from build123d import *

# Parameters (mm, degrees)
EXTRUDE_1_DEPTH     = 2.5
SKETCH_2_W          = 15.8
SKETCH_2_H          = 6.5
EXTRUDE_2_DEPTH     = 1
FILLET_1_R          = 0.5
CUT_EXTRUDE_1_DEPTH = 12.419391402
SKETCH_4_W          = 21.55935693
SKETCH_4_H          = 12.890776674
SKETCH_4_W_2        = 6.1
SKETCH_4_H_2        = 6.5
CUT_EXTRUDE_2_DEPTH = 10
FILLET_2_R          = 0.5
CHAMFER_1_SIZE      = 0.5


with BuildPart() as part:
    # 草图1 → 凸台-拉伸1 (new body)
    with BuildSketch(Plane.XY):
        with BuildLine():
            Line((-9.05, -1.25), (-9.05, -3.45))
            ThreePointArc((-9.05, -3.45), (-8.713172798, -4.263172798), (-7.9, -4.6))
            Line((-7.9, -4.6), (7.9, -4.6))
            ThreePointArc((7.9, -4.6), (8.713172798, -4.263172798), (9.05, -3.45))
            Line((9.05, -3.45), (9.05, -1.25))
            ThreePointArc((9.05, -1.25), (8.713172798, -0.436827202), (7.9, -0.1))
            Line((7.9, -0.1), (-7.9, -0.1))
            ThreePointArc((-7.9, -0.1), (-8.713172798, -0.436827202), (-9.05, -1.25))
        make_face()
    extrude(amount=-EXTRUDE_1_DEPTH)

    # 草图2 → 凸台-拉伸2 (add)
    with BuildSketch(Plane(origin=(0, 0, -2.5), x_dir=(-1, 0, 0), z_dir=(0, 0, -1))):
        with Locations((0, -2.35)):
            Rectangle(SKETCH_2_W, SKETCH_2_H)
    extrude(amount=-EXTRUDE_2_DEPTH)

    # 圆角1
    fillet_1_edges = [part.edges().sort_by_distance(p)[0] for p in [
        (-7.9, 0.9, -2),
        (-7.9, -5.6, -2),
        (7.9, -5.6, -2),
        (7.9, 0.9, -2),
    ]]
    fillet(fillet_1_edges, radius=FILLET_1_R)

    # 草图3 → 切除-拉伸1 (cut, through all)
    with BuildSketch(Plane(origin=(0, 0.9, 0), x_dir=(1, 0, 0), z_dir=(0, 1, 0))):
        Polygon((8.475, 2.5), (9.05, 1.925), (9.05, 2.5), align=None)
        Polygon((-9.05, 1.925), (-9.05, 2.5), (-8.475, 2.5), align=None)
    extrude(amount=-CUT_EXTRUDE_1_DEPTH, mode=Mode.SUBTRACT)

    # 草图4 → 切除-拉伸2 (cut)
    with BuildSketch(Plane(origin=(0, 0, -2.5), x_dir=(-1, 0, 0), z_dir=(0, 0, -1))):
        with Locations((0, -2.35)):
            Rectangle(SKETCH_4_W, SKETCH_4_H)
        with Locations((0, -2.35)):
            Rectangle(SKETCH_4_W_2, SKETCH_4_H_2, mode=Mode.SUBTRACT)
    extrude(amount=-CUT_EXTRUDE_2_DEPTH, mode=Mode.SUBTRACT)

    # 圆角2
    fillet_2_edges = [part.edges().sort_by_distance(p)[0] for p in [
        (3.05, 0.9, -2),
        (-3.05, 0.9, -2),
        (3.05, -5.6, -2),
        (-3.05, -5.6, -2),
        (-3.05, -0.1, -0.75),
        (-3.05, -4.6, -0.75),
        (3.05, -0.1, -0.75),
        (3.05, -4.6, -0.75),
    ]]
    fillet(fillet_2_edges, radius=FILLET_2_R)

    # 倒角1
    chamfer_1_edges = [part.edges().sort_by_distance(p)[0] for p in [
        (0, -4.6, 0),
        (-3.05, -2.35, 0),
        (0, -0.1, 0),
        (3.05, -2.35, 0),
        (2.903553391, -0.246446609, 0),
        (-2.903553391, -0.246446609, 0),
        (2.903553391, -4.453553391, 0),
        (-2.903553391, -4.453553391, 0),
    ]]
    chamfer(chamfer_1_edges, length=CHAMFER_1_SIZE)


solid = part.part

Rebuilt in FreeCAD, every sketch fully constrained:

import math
import FreeCAD as App
import Part
import Sketcher


def edges_at(feature, points):
    """Names of the edges that pass closest to the given points."""
    edges = feature.Shape.Edges
    near = lambda p: min(range(len(edges)), key=lambda i: edges[i].distToShape(Part.Vertex(*p))[0])
    return sorted({f"Edge{near(p) + 1}" for p in points})


def add_polygon(sketch, points):
    """Adds a closed chain of lines whose ends are joined by coincident constraints."""
    first, n = sketch.GeometryCount, len(points)
    for a, b in zip(points, points[1:] + points[:1]):
        sketch.addGeometry(Part.LineSegment(App.Vector(*a, 0), App.Vector(*b, 0)), False)
    for i in range(n):
        sketch.addConstraint(Sketcher.Constraint("Coincident", first + i, 2, first + (i + 1) % n, 1))

doc = App.newDocument("Part")
body = doc.addObject("PartDesign::Body", "Body")

sketch1 = doc.addObject("Sketcher::SketchObject", "Sketch")
body.addObject(sketch1)
sketch1.AttachmentSupport = (doc.XY_Plane, [""])
sketch1.MapMode = "FlatFace"
sketch1.addGeometry(Part.LineSegment(App.Vector(-9.05, -1.25, 0), App.Vector(-9.05, -3.45, 0)), False)
sketch1.addGeometry(Part.ArcOfCircle(Part.Circle(App.Vector(-7.9, -3.45, 0), App.Vector(0, 0, 1), 1.15), math.radians(-180), math.radians(-90)), False)
sketch1.addGeometry(Part.LineSegment(App.Vector(-7.9, -4.6, 0), App.Vector(7.9, -4.6, 0)), False)
sketch1.addGeometry(Part.ArcOfCircle(Part.Circle(App.Vector(7.9, -3.45, 0), App.Vector(0, 0, 1), 1.15), math.radians(-90), math.radians(0)), False)
sketch1.addGeometry(Part.LineSegment(App.Vector(9.05, -3.45, 0), App.Vector(9.05, -1.25, 0)), False)
sketch1.addGeometry(Part.ArcOfCircle(Part.Circle(App.Vector(7.9, -1.25, 0), App.Vector(0, 0, 1), 1.15), math.radians(0), math.radians(90)), False)
sketch1.addGeometry(Part.LineSegment(App.Vector(7.9, -0.1, 0), App.Vector(-7.9, -0.1, 0)), False)
sketch1.addGeometry(Part.ArcOfCircle(Part.Circle(App.Vector(-7.9, -1.25, 0), App.Vector(0, 0, 1), 1.15), math.radians(90), math.radians(180)), False)
sketch1.addConstraint(Sketcher.Constraint("Tangent", 0, 2, 1, 1))
sketch1.addConstraint(Sketcher.Constraint("Tangent", 1, 2, 2, 1))
sketch1.addConstraint(Sketcher.Constraint("Tangent", 2, 2, 3, 1))
sketch1.addConstraint(Sketcher.Constraint("Tangent", 3, 2, 4, 1))
sketch1.addConstraint(Sketcher.Constraint("Tangent", 4, 2, 5, 1))
sketch1.addConstraint(Sketcher.Constraint("Tangent", 5, 2, 6, 1))
sketch1.addConstraint(Sketcher.Constraint("Tangent", 6, 2, 7, 1))
sketch1.addConstraint(Sketcher.Constraint("Tangent", 7, 2, 0, 1))
sketch1.addConstraint(Sketcher.Constraint("Vertical", 0))
sketch1.addConstraint(Sketcher.Constraint("Horizontal", 2))
sketch1.addConstraint(Sketcher.Constraint("Vertical", 4))
sketch1.addConstraint(Sketcher.Constraint("Horizontal", 6))
sketch1.addConstraint(Sketcher.Constraint("Equal", 1, 3))
sketch1.addConstraint(Sketcher.Constraint("Equal", 3, 5))
sketch1.addConstraint(Sketcher.Constraint("Equal", 5, 7))
sketch1.addConstraint(Sketcher.Constraint("Radius", 1, 1.15))
sketch1.addConstraint(Sketcher.Constraint("DistanceX", 2, 1, 2, 2, 15.8))
sketch1.addConstraint(Sketcher.Constraint("DistanceY", 0, 2, 0, 1, 2.2))
sketch1.addConstraint(Sketcher.Constraint("DistanceX", 1, 3, -1, 1, 7.9))
sketch1.addConstraint(Sketcher.Constraint("DistanceY", 1, 2, -1, 1, 4.6))
pad1 = doc.addObject("PartDesign::Pad", "Pad")
body.addObject(pad1)
pad1.Profile = sketch1
pad1.Length = 2.5
pad1.Reversed = True

sketch2 = doc.addObject("Sketcher::SketchObject", "Sketch001")
body.addObject(sketch2)
sketch2.AttachmentSupport = (doc.XY_Plane, [""])
sketch2.MapMode = "FlatFace"
sketch2.AttachmentOffset = App.Placement(App.Vector(0, 0, -2.5), App.Rotation())
add_polygon(sketch2, [(7.9, 0.9), (7.9, -5.6), (-7.9, -5.6), (-7.9, 0.9)])
sketch2.addConstraint(Sketcher.Constraint("Vertical", 0))
sketch2.addConstraint(Sketcher.Constraint("Horizontal", 1))
sketch2.addConstraint(Sketcher.Constraint("Vertical", 2))
sketch2.addConstraint(Sketcher.Constraint("Horizontal", 3))
sketch2.addConstraint(Sketcher.Constraint("DistanceX", 1, 2, 1, 1, 15.8))
sketch2.addConstraint(Sketcher.Constraint("DistanceY", 0, 2, 0, 1, 6.5))
sketch2.addConstraint(Sketcher.Constraint("DistanceX", -1, 1, 0, 2, 7.9))
sketch2.addConstraint(Sketcher.Constraint("DistanceY", 0, 2, -1, 1, 5.6))
pad2 = doc.addObject("PartDesign::Pad", "Pad001")
body.addObject(pad2)
pad2.Profile = sketch2
pad2.Length = 1
doc.recompute()

fillet = doc.addObject("PartDesign::Fillet", "Fillet")
body.addObject(fillet)
fillet.Base = (pad2, edges_at(pad2, [
    (-7.9, 0.9, -2),
    (-7.9, -5.6, -2),
    (7.9, -5.6, -2),
    (7.9, 0.9, -2),
]))
fillet.Radius = 0.5

sketch3 = doc.addObject("Sketcher::SketchObject", "Sketch002")
body.addObject(sketch3)
sketch3.AttachmentSupport = (doc.XZ_Plane, [""])
sketch3.MapMode = "FlatFace"
sketch3.AttachmentOffset = App.Placement(App.Vector(0, 0, -0.9), App.Rotation())
add_polygon(sketch3, [(8.475, -2.5), (9.05, -1.925), (9.05, -2.5)])
add_polygon(sketch3, [(-9.05, -2.5), (-9.05, -1.925), (-8.475, -2.5)])
sketch3.addConstraint(Sketcher.Constraint("Vertical", 1))
sketch3.addConstraint(Sketcher.Constraint("Horizontal", 2))
sketch3.addConstraint(Sketcher.Constraint("Vertical", 3))
sketch3.addConstraint(Sketcher.Constraint("Horizontal", 5))
sketch3.addConstraint(Sketcher.Constraint("Symmetric", 0, 2, 3, 2, -2))
sketch3.addConstraint(Sketcher.Constraint("Symmetric", 2, 2, 4, 2, -2))
sketch3.addConstraint(Sketcher.Constraint("Perpendicular", 0, 4))
sketch3.addConstraint(Sketcher.Constraint("DistanceY", 1, 2, -1, 1, 2.5))
sketch3.addConstraint(Sketcher.Constraint("DistanceX", 3, 2, 0, 2, 18.1))
sketch3.addConstraint(Sketcher.Constraint("DistanceX", 2, 2, 2, 1, 0.575))
pocket1 = doc.addObject("PartDesign::Pocket", "Pocket")
body.addObject(pocket1)
pocket1.Profile = sketch3
pocket1.Type = "ThroughAll"
pocket1.Reversed = True

sketch4 = doc.addObject("Sketcher::SketchObject", "Sketch003")
body.addObject(sketch4)
sketch4.AttachmentSupport = (doc.XY_Plane, [""])
sketch4.MapMode = "FlatFace"
sketch4.AttachmentOffset = App.Placement(App.Vector(0, 0, -2.5), App.Rotation())
add_polygon(sketch4, [(10.779678, 4.095388), (10.779678, -8.795388), (-10.779678, -8.795388), (-10.779678, 4.095388)])
add_polygon(sketch4, [(-3.05, -5.6), (3.05, -5.6), (3.05, 0.9), (-3.05, 0.9)])
sketch4.addConstraint(Sketcher.Constraint("Vertical", 0))
sketch4.addConstraint(Sketcher.Constraint("Horizontal", 1))
sketch4.addConstraint(Sketcher.Constraint("Vertical", 2))
sketch4.addConstraint(Sketcher.Constraint("Horizontal", 3))
sketch4.addConstraint(Sketcher.Constraint("Horizontal", 4))
sketch4.addConstraint(Sketcher.Constraint("Vertical", 5))
sketch4.addConstraint(Sketcher.Constraint("Horizontal", 6))
sketch4.addConstraint(Sketcher.Constraint("Vertical", 7))
sketch4.addConstraint(Sketcher.Constraint("DistanceX", 4, 1, 4, 2, 6.1))
sketch4.addConstraint(Sketcher.Constraint("DistanceY", 5, 1, 5, 2, 6.5))
sketch4.addConstraint(Sketcher.Constraint("DistanceY", 4, 2, -1, 1, 5.6))
sketch4.addConstraint(Sketcher.Constraint("DistanceX", -1, 1, 4, 2, 3.05))
sketch4.addConstraint(Sketcher.Constraint("DistanceX", 1, 2, 1, 1, 21.559357))
sketch4.addConstraint(Sketcher.Constraint("DistanceY", 0, 2, 0, 1, 12.890777))
sketch4.addConstraint(Sketcher.Constraint("DistanceX", -1, 1, 0, 2, 10.779678))
sketch4.addConstraint(Sketcher.Constraint("DistanceY", 0, 2, -1, 1, 8.795388))
pocket2 = doc.addObject("PartDesign::Pocket", "Pocket001")
body.addObject(pocket2)
pocket2.Profile = sketch4
pocket2.Length = 10
pocket2.Reversed = True
doc.recompute()

fillet2 = doc.addObject("PartDesign::Fillet", "Fillet001")
body.addObject(fillet2)
fillet2.Base = (pocket2, edges_at(pocket2, [
    (3.05, 0.9, -2),
    (-3.05, 0.9, -2),
    (3.05, -5.6, -2),
    (-3.05, -5.6, -2),
    (-3.05, -0.1, -0.75),
    (-3.05, -4.6, -0.75),
    (3.05, -0.1, -0.75),
    (3.05, -4.6, -0.75),
]))
fillet2.Radius = 0.5
doc.recompute()

chamfer = doc.addObject("PartDesign::Chamfer", "Chamfer")
body.addObject(chamfer)
chamfer.Base = (fillet2, edges_at(fillet2, [
    (0, -4.6, 0),
    (-3.05, -2.35, 0),
    (0, -0.1, 0),
    (3.05, -2.35, 0),
    (2.904, -0.246, 0),
    (-2.904, -0.246, 0),
    (2.904, -4.454, 0),
    (-2.904, -4.454, 0),
]))
chamfer.Size = 0.5

doc.recompute()
